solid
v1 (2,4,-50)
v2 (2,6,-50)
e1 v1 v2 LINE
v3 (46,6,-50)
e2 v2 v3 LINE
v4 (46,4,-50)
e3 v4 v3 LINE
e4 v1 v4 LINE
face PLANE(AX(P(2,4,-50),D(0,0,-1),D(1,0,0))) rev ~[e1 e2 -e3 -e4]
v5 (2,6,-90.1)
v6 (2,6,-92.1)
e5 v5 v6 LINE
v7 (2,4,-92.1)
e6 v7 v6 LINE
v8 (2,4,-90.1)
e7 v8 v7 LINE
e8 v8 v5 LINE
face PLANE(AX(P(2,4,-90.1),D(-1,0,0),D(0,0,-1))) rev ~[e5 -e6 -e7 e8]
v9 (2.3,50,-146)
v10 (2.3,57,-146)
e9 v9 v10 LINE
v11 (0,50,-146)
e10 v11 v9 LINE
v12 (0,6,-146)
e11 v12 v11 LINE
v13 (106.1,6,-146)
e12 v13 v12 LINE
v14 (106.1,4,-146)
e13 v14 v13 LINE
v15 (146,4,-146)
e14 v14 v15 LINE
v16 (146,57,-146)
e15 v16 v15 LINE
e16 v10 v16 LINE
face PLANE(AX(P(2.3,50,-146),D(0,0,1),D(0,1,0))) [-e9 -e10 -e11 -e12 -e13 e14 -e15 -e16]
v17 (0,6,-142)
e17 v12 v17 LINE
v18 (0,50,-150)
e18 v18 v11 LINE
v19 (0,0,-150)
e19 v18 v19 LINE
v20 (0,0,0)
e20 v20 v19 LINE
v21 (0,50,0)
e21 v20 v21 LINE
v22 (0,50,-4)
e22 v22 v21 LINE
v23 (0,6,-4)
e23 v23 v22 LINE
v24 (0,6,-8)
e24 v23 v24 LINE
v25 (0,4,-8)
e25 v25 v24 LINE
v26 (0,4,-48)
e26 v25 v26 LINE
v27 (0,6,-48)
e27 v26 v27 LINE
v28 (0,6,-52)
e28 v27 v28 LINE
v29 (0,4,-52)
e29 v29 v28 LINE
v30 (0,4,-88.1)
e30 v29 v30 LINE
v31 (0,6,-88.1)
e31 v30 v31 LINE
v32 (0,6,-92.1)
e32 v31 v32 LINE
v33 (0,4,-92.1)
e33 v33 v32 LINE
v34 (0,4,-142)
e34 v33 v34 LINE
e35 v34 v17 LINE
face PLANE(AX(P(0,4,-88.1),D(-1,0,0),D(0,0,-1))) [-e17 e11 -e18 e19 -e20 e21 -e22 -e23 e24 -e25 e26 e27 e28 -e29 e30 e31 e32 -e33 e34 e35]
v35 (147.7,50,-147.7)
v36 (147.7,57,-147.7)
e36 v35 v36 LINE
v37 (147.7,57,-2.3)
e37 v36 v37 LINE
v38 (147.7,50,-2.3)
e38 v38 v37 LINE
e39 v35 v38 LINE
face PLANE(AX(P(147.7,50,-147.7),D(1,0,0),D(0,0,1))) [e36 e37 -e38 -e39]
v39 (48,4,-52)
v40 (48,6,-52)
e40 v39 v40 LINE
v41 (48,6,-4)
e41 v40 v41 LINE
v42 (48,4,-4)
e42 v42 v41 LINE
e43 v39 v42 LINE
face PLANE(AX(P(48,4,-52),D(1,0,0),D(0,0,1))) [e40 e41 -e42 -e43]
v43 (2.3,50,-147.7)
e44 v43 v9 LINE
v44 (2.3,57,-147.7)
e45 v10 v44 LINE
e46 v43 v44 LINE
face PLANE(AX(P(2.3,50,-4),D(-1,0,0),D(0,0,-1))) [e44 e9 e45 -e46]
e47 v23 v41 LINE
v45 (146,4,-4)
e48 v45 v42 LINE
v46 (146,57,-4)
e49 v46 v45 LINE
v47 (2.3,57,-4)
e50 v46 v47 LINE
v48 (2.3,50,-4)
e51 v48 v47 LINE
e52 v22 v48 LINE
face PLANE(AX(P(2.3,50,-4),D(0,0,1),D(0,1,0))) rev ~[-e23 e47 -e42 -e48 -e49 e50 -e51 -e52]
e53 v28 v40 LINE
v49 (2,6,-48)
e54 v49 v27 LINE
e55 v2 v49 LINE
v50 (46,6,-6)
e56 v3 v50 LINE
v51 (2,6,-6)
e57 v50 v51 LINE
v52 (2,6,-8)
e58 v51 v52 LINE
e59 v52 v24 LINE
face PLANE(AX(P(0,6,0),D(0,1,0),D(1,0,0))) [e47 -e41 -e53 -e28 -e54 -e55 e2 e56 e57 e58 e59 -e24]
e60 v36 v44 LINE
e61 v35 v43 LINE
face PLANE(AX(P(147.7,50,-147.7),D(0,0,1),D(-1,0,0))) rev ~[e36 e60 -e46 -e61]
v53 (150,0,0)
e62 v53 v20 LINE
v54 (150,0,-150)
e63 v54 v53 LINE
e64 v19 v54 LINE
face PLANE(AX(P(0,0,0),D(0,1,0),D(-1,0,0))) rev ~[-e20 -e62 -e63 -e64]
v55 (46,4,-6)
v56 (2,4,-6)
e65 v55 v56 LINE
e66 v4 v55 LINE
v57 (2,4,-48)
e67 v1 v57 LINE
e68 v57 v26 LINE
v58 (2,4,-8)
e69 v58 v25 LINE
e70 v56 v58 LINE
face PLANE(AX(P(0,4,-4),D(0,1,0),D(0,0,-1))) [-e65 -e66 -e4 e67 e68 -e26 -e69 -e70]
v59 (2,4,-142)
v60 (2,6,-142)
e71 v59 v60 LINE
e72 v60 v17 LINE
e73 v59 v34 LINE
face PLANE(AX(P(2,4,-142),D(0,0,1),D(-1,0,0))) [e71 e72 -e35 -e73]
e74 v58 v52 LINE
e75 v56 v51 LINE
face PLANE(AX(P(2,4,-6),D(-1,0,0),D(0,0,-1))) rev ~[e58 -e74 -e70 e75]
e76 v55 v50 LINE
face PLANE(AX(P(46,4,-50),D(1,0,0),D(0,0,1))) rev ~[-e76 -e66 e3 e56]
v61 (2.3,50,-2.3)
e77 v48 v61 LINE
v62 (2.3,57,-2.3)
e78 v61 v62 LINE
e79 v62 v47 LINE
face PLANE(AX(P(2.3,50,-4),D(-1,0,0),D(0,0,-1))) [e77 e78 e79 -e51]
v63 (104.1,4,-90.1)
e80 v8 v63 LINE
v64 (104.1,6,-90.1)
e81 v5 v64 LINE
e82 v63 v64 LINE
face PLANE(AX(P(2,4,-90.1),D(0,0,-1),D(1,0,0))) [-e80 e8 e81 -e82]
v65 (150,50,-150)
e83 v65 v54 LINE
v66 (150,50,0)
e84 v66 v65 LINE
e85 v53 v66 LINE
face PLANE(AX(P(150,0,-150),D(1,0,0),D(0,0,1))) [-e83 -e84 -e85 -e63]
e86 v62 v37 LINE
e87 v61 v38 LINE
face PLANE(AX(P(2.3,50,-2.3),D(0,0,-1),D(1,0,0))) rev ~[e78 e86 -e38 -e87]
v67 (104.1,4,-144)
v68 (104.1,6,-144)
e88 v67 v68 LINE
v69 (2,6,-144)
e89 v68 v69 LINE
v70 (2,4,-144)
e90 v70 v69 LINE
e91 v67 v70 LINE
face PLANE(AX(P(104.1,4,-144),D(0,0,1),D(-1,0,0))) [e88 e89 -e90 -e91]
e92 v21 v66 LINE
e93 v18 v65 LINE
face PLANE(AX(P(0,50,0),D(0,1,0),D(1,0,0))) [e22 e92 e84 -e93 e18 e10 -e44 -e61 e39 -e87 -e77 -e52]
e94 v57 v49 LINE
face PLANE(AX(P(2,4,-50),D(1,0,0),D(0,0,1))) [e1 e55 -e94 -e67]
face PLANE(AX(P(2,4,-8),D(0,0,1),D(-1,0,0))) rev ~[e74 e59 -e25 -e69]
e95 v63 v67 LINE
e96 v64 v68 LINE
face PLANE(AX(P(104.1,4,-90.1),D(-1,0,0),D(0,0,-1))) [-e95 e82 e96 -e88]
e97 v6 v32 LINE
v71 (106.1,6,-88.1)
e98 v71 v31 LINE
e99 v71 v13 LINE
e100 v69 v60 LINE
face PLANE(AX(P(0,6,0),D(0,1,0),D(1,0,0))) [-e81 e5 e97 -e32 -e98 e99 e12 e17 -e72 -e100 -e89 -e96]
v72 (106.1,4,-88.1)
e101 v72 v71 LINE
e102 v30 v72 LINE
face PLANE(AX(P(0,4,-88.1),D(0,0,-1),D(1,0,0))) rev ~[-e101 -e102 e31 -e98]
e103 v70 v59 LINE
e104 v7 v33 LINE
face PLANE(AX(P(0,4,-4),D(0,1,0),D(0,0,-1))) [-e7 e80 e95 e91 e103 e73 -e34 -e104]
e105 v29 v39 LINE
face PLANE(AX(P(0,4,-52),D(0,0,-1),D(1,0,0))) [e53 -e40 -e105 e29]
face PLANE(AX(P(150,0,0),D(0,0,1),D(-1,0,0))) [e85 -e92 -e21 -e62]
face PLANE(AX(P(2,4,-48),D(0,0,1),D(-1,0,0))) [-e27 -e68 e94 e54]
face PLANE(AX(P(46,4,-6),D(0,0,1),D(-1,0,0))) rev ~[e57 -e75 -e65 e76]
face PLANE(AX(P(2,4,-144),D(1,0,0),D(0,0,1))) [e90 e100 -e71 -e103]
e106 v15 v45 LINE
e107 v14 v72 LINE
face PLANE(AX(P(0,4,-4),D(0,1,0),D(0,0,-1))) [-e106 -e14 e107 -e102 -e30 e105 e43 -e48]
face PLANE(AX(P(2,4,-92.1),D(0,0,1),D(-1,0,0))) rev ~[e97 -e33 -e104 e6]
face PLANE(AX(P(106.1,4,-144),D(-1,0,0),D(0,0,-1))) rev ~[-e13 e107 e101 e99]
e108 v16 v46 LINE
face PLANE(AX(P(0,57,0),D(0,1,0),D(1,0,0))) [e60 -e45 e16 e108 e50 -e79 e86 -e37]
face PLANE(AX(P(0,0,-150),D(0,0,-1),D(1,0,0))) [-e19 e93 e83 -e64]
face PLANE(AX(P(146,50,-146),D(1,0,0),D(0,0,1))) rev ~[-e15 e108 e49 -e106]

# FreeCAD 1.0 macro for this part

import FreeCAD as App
import Part
import Sketcher


def add_polygon(sketch, points):
    """Adds a closed chain of lines whose ends are joined by coincident constraints."""
    first, n = sketch.GeometryCount, len(points)
    for a, b in zip(points, points[1:] + points[:1]):
        sketch.addGeometry(Part.LineSegment(App.Vector(*a, 0), App.Vector(*b, 0)), False)
    for i in range(n):
        sketch.addConstraint(Sketcher.Constraint("Coincident", first + i, 2, first + (i + 1) % n, 1))

doc = App.newDocument("Part")
params = doc.addObject("Spreadsheet::Sheet", "Params")
for row, (alias, value) in enumerate([
    ("sketch1_width", "150 mm"),
    ("pad1_length", "4 mm"),
    ("sketch2_width", "150 mm"),
    ("sketch2_width2", "142 mm"),
    ("pad2_length", "46 mm"),
    ("sketch3_width", "142 mm"),
    ("sketch3_width2", "145.4 mm"),
    ("pad3_length", "7 mm"),
    ("sketch4_width", "46 mm"),
    ("sketch4_height", "142 mm"),
    ("pocket1_length", "4 mm"),
    ("sketch5_width", "7 mm"),
    ("sketch5_height", "142 mm"),
    ("pocket2_length", "4 mm"),
    ("sketch6_width", "48 mm"),
    ("sketch6_width2", "2 mm"),
    ("sketch6_width3", "44 mm"),
    ("pad4_length", "2 mm"),
    ("sketch7_width", "2 mm"),
    ("sketch7_height", "4 mm"),
    ("sketch7_width2", "106.1 mm"),
    ("sketch7_width3", "102.1 mm"),
    ("sketch7_height2", "57.9 mm"),
    ("pad5_length", "2 mm"),
], start=1):
    params.set(f"A{row}", alias)
    params.set(f"B{row}", "=" + value)
    params.setAlias(f"B{row}", alias)

body = doc.addObject("PartDesign::Body", "Body")

sketch1 = doc.addObject("Sketcher::SketchObject", "Sketch")
body.addObject(sketch1)
sketch1.AttachmentSupport = (doc.XZ_Plane, [""])
sketch1.MapMode = "FlatFace"
add_polygon(sketch1, [(0, -150), (0, 0), (150, 0), (150, -150)])
sketch1.addConstraint(Sketcher.Constraint("Vertical", 0))
sketch1.addConstraint(Sketcher.Constraint("Horizontal", 1))
sketch1.addConstraint(Sketcher.Constraint("Vertical", 2))
sketch1.addConstraint(Sketcher.Constraint("Horizontal", 3))
sketch1.addConstraint(Sketcher.Constraint("Coincident", 0, 2, -1, 1))
sketch1.addConstraint(Sketcher.Constraint("Equal", 3, 0))
sketch1.addConstraint(Sketcher.Constraint("DistanceX", 1, 1, 1, 2, 150.0))
sketch1.setExpression("Constraints[10]", "Params.sketch1_width")
pad1 = doc.addObject("PartDesign::Pad", "Pad")
body.addObject(pad1)
pad1.Profile = sketch1
pad1.setExpression("Length", "Params.pad1_length")
pad1.Reversed = True

sketch2 = doc.addObject("Sketcher::SketchObject", "Sketch001")
body.addObject(sketch2)
sketch2.AttachmentSupport = (doc.XZ_Plane, [""])
sketch2.MapMode = "FlatFace"
sketch2.AttachmentOffset = App.Placement(App.Vector(0, 0, -4), App.Rotation())
add_polygon(sketch2, [(150, -150), (0, -150), (0, 0), (150, 0)])
add_polygon(sketch2, [(146, -4), (4, -4), (4, -146), (146, -146)])
sketch2.addConstraint(Sketcher.Constraint("Horizontal", 0))
sketch2.addConstraint(Sketcher.Constraint("Vertical", 1))
sketch2.addConstraint(Sketcher.Constraint("Horizontal", 2))
sketch2.addConstraint(Sketcher.Constraint("Vertical", 3))
sketch2.addConstraint(Sketcher.Constraint("Horizontal", 4))
sketch2.addConstraint(Sketcher.Constraint("Vertical", 5))
sketch2.addConstraint(Sketcher.Constraint("Horizontal", 6))
sketch2.addConstraint(Sketcher.Constraint("Vertical", 7))
sketch2.addConstraint(Sketcher.Constraint("Coincident", 1, 2, -1, 1))
sketch2.addConstraint(Sketcher.Constraint("Equal", 2, 1))
sketch2.addConstraint(Sketcher.Constraint("Equal", 6, 5))
sketch2.addConstraint(Sketcher.Constraint("DistanceX", 0, 2, 0, 1, 150.0))
sketch2.addConstraint(Sketcher.Constraint("DistanceX", 4, 2, 4, 1, 142.0))
sketch2.addConstraint(Sketcher.Constraint("DistanceX", -1, 1, 4, 2, 4.0))
sketch2.addConstraint(Sketcher.Constraint("DistanceY", 4, 2, -1, 1, 4.0))
sketch2.setExpression("Constraints[19]", "Params.sketch2_width")
sketch2.setExpression("Constraints[20]", "Params.sketch2_width2")
pad2 = doc.addObject("PartDesign::Pad", "Pad001")
body.addObject(pad2)
pad2.Profile = sketch2
pad2.setExpression("Length", "Params.pad2_length")
pad2.Reversed = True

sketch3 = doc.addObject("Sketcher::SketchObject", "Sketch002")
body.addObject(sketch3)
sketch3.AttachmentSupport = (doc.XZ_Plane, [""])
sketch3.MapMode = "FlatFace"
sketch3.AttachmentOffset = App.Placement(App.Vector(0, 0, -50), App.Rotation())
add_polygon(sketch3, [(2, -148), (2, -2), (148, -2), (148, -148)])
add_polygon(sketch3, [(4, -4), (4, -146), (146, -146), (146, -4)])
sketch3.addConstraint(Sketcher.Constraint("Vertical", 0))
sketch3.addConstraint(Sketcher.Constraint("Horizontal", 1))
sketch3.addConstraint(Sketcher.Constraint("Vertical", 2))
sketch3.addConstraint(Sketcher.Constraint("Horizontal", 3))
sketch3.addConstraint(Sketcher.Constraint("Vertical", 4))
sketch3.addConstraint(Sketcher.Constraint("Horizontal", 5))
sketch3.addConstraint(Sketcher.Constraint("Vertical", 6))
sketch3.addConstraint(Sketcher.Constraint("Horizontal", 7))
sketch3.addConstraint(Sketcher.Constraint("Equal", 3, 0))
sketch3.addConstraint(Sketcher.Constraint("Equal", 7, 4))
sketch3.addConstraint(Sketcher.Constraint("DistanceX", 5, 1, 5, 2, 142.0))
sketch3.addConstraint(Sketcher.Constraint("DistanceX", 1, 1, 1, 2, 145.4))
sketch3.addConstraint(Sketcher.Constraint("DistanceX", -1, 1, 4, 2, 4.0))
sketch3.addConstraint(Sketcher.Constraint("DistanceY", 4, 2, -1, 1, 146.0))
sketch3.addConstraint(Sketcher.Constraint("DistanceX", -1, 1, 0, 2, 2.3))
sketch3.addConstraint(Sketcher.Constraint("DistanceY", 0, 2, -1, 1, 2.3))
sketch3.setExpression("Constraints[18]", "Params.sketch3_width")
sketch3.setExpression("Constraints[19]", "Params.sketch3_width2")
pad3 = doc.addObject("PartDesign::Pad", "Pad002")
body.addObject(pad3)
pad3.Profile = sketch3
pad3.setExpression("Length", "Params.pad3_length")
pad3.Reversed = True

sketch4 = doc.addObject("Sketcher::SketchObject", "Sketch003")
body.addObject(sketch4)
sketch4.AttachmentSupport = (doc.YZ_Plane, [""])
sketch4.MapMode = "FlatFace"
add_polygon(sketch4, [(50, -4), (50, -146), (4, -146), (4, -4)])
sketch4.addConstraint(Sketcher.Constraint("Vertical", 0))
sketch4.addConstraint(Sketcher.Constraint("Horizontal", 1))
sketch4.addConstraint(Sketcher.Constraint("Vertical", 2))
sketch4.addConstraint(Sketcher.Constraint("Horizontal", 3))
sketch4.addConstraint(Sketcher.Constraint("DistanceX", 1, 2, 1, 1, 46.0))
sketch4.addConstraint(Sketcher.Constraint("DistanceY", 0, 2, 0, 1, 142.0))
sketch4.addConstraint(Sketcher.Constraint("DistanceX", -1, 1, 0, 2, 50.0))
sketch4.addConstraint(Sketcher.Constraint("DistanceY", 0, 2, -1, 1, 146.0))
sketch4.setExpression("Constraints[8]", "Params.sketch4_width")
sketch4.setExpression("Constraints[9]", "Params.sketch4_height")
pocket1 = doc.addObject("PartDesign::Pocket", "Pocket")
body.addObject(pocket1)
pocket1.Profile = sketch4
pocket1.setExpression("Length", "Params.pocket1_length")
pocket1.Reversed = True

sketch5 = doc.addObject("Sketcher::SketchObject", "Sketch004")
body.addObject(sketch5)
sketch5.AttachmentSupport = (doc.YZ_Plane, [""])
sketch5.MapMode = "FlatFace"
sketch5.AttachmentOffset = App.Placement(App.Vector(0, 0, 2.3), App.Rotation())
add_polygon(sketch5, [(50, -146), (50, -4), (57, -4), (57, -146)])
sketch5.addConstraint(Sketcher.Constraint("Vertical", 0))
sketch5.addConstraint(Sketcher.Constraint("Horizontal", 1))
sketch5.addConstraint(Sketcher.Constraint("Vertical", 2))
sketch5.addConstraint(Sketcher.Constraint("Horizontal", 3))
sketch5.addConstraint(Sketcher.Constraint("DistanceX", 1, 1, 1, 2, 7.0))
sketch5.addConstraint(Sketcher.Constraint("DistanceY", 0, 1, 0, 2, 142.0))
sketch5.addConstraint(Sketcher.Constraint("DistanceX", -1, 1, 0, 2, 50.0))
sketch5.addConstraint(Sketcher.Constraint("DistanceY", 0, 2, -1, 1, 4.0))
sketch5.setExpression("Constraints[8]", "Params.sketch5_width")
sketch5.setExpression("Constraints[9]", "Params.sketch5_height")
pocket2 = doc.addObject("PartDesign::Pocket", "Pocket001")
body.addObject(pocket2)
pocket2.Profile = sketch5
pocket2.setExpression("Length", "Params.pocket2_length")
pocket2.Reversed = True

sketch6 = doc.addObject("Sketcher::SketchObject", "Sketch005")
body.addObject(sketch6)
sketch6.AttachmentSupport = (doc.XZ_Plane, [""])
sketch6.MapMode = "FlatFace"
sketch6.AttachmentOffset = App.Placement(App.Vector(0, 0, -4), App.Rotation())
add_polygon(sketch6, [(48, -52), (0, -52), (0, -48), (2, -48), (2, -50), (46, -50), (46, -6), (2, -6), (2, -8), (0, -8), (0, -4), (48, -4)])
sketch6.addConstraint(Sketcher.Constraint("Horizontal", 0))
sketch6.addConstraint(Sketcher.Constraint("Vertical", 1))
sketch6.addConstraint(Sketcher.Constraint("Horizontal", 2))
sketch6.addConstraint(Sketcher.Constraint("Vertical", 3))
sketch6.addConstraint(Sketcher.Constraint("Horizontal", 4))
sketch6.addConstraint(Sketcher.Constraint("Vertical", 5))
sketch6.addConstraint(Sketcher.Constraint("Horizontal", 6))
sketch6.addConstraint(Sketcher.Constraint("Vertical", 7))
sketch6.addConstraint(Sketcher.Constraint("Horizontal", 8))
sketch6.addConstraint(Sketcher.Constraint("Vertical", 9))
sketch6.addConstraint(Sketcher.Constraint("Horizontal", 10))
sketch6.addConstraint(Sketcher.Constraint("Vertical", 11))
sketch6.addConstraint(Sketcher.Constraint("PointOnObject", 0, 2, -2))
sketch6.addConstraint(Sketcher.Constraint("PointOnObject", 8, 2, -2))
sketch6.addConstraint(Sketcher.Constraint("Vertical", 3, 2, 6, 2))
sketch6.addConstraint(Sketcher.Constraint("Equal", 8, 3))
sketch6.addConstraint(Sketcher.Constraint("Equal", 6, 5))
sketch6.addConstraint(Sketcher.Constraint("Equal", 3, 7))
sketch6.addConstraint(Sketcher.Constraint("Equal", 1, 9))
sketch6.addConstraint(Sketcher.Constraint("Equal", 10, 11))
sketch6.addConstraint(Sketcher.Constraint("DistanceX", 0, 2, 0, 1, 48.0))
sketch6.addConstraint(Sketcher.Constraint("DistanceX", 2, 1, 2, 2, 2.0))
sketch6.addConstraint(Sketcher.Constraint("DistanceX", 4, 1, 4, 2, 44.0))
sketch6.addConstraint(Sketcher.Constraint("DistanceY", 0, 2, -1, 1, 52.0))
sketch6.setExpression("Constraints[32]", "Params.sketch6_width")
sketch6.setExpression("Constraints[33]", "Params.sketch6_width2")
sketch6.setExpression("Constraints[34]", "Params.sketch6_width3")
pad4 = doc.addObject("PartDesign::Pad", "Pad003")
body.addObject(pad4)
pad4.Profile = sketch6
pad4.setExpression("Length", "Params.pad4_length")
pad4.Reversed = True

sketch7 = doc.addObject("Sketcher::SketchObject", "Sketch006")
body.addObject(sketch7)
sketch7.AttachmentSupport = (doc.XZ_Plane, [""])
sketch7.MapMode = "FlatFace"
sketch7.AttachmentOffset = App.Placement(App.Vector(0, 0, -4), App.Rotation())
add_polygon(sketch7, [(0, -92.1), (0, -88.1), (106.1, -88.1), (106.1, -146), (0, -146), (0, -142), (2, -142), (2, -144), (104.1, -144), (104.1, -90.1), (2, -90.1), (2, -92.1)])
sketch7.addConstraint(Sketcher.Constraint("Vertical", 0))
sketch7.addConstraint(Sketcher.Constraint("Horizontal", 1))
sketch7.addConstraint(Sketcher.Constraint("Vertical", 2))
sketch7.addConstraint(Sketcher.Constraint("Horizontal", 3))
sketch7.addConstraint(Sketcher.Constraint("Vertical", 4))
sketch7.addConstraint(Sketcher.Constraint("Horizontal", 5))
sketch7.addConstraint(Sketcher.Constraint("Vertical", 6))
sketch7.addConstraint(Sketcher.Constraint("Horizontal", 7))
sketch7.addConstraint(Sketcher.Constraint("Vertical", 8))
sketch7.addConstraint(Sketcher.Constraint("Horizontal", 9))
sketch7.addConstraint(Sketcher.Constraint("Vertical", 10))
sketch7.addConstraint(Sketcher.Constraint("Horizontal", 11))
sketch7.addConstraint(Sketcher.Constraint("PointOnObject", 0, 2, -2))
sketch7.addConstraint(Sketcher.Constraint("PointOnObject", 3, 2, -2))
sketch7.addConstraint(Sketcher.Constraint("Vertical", 6, 2, 9, 2))
sketch7.addConstraint(Sketcher.Constraint("Equal", 0, 4))
sketch7.addConstraint(Sketcher.Constraint("Equal", 11, 6))
sketch7.addConstraint(Sketcher.Constraint("Equal", 6, 10))
sketch7.addConstraint(Sketcher.Constraint("DistanceX", 5, 1, 5, 2, 2.0))
sketch7.addConstraint(Sketcher.Constraint("DistanceY", 0, 1, 0, 2, 4.0))
sketch7.addConstraint(Sketcher.Constraint("DistanceX", 1, 1, 1, 2, 106.1))
sketch7.addConstraint(Sketcher.Constraint("DistanceX", 7, 1, 7, 2, 102.1))
sketch7.addConstraint(Sketcher.Constraint("DistanceY", 2, 2, 2, 1, 57.9))
sketch7.addConstraint(Sketcher.Constraint("DistanceY", 2, 2, -1, 1, 146.0))
sketch7.setExpression("Constraints[30]", "Params.sketch7_width")
sketch7.setExpression("Constraints[31]", "Params.sketch7_height")
sketch7.setExpression("Constraints[32]", "Params.sketch7_width2")
sketch7.setExpression("Constraints[33]", "Params.sketch7_width3")
sketch7.setExpression("Constraints[34]", "Params.sketch7_height2")
pad5 = doc.addObject("PartDesign::Pad", "Pad004")
body.addObject(pad5)
pad5.Profile = sketch7
pad5.setExpression("Length", "Params.pad5_length")
pad5.Reversed = True

doc.recompute()
